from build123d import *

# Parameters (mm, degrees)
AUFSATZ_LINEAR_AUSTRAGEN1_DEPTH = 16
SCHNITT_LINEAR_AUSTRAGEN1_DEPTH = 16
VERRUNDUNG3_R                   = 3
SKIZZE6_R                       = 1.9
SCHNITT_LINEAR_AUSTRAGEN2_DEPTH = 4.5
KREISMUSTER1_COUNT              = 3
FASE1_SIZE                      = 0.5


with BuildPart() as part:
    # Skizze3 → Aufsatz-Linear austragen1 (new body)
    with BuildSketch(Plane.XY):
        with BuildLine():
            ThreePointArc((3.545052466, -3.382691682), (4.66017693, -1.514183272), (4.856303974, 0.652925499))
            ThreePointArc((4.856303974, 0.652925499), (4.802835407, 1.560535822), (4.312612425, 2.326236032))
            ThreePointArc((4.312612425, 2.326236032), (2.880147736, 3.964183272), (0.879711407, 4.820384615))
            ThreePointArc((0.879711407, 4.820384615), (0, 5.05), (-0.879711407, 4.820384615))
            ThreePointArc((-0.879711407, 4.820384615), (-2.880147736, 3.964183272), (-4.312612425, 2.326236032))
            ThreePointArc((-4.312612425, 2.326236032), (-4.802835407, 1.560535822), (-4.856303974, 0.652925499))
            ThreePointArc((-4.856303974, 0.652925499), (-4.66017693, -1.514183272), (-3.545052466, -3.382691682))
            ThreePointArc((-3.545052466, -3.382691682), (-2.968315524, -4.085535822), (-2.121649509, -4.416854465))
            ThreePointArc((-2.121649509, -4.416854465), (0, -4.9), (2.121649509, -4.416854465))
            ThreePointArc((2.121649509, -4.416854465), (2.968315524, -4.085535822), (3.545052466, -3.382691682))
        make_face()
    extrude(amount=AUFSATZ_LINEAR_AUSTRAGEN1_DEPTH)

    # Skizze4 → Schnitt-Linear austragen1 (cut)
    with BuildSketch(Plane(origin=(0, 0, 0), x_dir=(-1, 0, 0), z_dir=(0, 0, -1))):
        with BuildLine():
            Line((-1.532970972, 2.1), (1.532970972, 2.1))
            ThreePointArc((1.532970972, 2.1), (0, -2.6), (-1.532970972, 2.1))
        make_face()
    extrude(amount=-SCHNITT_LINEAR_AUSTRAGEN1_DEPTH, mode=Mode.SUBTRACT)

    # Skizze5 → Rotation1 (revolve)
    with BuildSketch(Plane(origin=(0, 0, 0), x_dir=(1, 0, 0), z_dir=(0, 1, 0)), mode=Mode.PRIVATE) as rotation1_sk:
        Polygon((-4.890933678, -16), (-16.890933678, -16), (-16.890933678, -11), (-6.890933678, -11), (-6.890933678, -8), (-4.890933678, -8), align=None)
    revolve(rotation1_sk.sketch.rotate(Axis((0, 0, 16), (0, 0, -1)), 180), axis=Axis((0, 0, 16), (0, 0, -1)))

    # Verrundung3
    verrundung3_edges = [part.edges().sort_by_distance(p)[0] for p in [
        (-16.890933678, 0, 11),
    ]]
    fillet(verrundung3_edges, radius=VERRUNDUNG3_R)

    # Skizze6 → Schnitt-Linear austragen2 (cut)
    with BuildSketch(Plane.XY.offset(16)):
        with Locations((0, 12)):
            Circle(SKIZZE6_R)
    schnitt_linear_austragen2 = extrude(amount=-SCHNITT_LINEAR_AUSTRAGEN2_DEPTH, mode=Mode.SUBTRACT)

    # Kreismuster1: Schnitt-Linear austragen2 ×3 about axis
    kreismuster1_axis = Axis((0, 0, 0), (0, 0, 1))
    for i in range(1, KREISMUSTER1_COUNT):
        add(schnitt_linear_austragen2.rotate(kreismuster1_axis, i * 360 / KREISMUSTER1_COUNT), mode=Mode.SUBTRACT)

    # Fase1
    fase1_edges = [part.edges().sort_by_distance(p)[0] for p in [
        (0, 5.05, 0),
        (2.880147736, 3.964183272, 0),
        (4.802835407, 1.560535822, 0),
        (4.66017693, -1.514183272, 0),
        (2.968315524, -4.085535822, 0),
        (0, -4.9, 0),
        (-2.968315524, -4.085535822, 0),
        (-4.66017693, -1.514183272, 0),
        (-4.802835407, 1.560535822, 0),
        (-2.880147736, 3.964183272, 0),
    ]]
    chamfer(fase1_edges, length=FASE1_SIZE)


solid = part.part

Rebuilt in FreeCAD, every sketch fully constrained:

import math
import FreeCAD as App
import Part
import Sketcher

V = App.Vector
Q = App.Units.Quantity


def edges_at(feature, points):
    """Names of the edges that pass closest to the given points."""
    edges = feature.Shape.Edges
    near = lambda p: min(range(len(edges)), key=lambda i: edges[i].distToShape(Part.Vertex(*p))[0])
    return sorted({f"Edge{near(p) + 1}" for p in points})


def add_polygon(sketch, points):
    """Adds a closed chain of lines whose ends are joined by coincident constraints."""
    first, n = sketch.GeometryCount, len(points)
    for a, b in zip(points, points[1:] + points[:1]):
        sketch.addGeometry(Part.LineSegment(App.Vector(*a, 0), App.Vector(*b, 0)), False)
    for i in range(n):
        sketch.addConstraint(Sketcher.Constraint("Coincident", first + i, 2, first + (i + 1) % n, 1))

doc = App.newDocument("Part")
body = doc.addObject("PartDesign::Body", "Body")

# Sketch on XY plane
sketch1 = doc.addObject("Sketcher::SketchObject", "Sketch")
body.addObject(sketch1)
sketch1.AttachmentSupport = (doc.XY_Plane, [""])
sketch1.MapMode = "FlatFace"
sketch1.addGeometry(Part.ArcOfCircle(Part.Circle(V(0, 0, 0), V(0, 0, 1), 4.9), math.radians(-44), math.radians(8)), False)
sketch1.addGeometry(Part.ArcOfCircle(Part.Circle(V(3.1, 1, 0), V(0, 0, 1), 1.8), math.radians(-11), math.radians(47)), False)
sketch1.addGeometry(Part.ArcOfCircle(Part.Circle(V(0, 0, 0), V(0, 0, 1), 4.9), math.radians(28), math.radians(80)), False)
sketch1.addGeometry(Part.ArcOfCircle(Part.Circle(V(0, 3.3, 0), V(0, 0, 1), 1.8), math.radians(61), math.radians(119)), False)
sketch1.addGeometry(Part.ArcOfCircle(Part.Circle(V(0, 0, 0), V(0, 0, 1), 4.9), math.radians(100), math.radians(152)), False)
sketch1.addGeometry(Part.ArcOfCircle(Part.Circle(V(-3.1, 1, 0), V(0, 0, 1), 1.8), math.radians(133), math.radians(191)), False)
sketch1.addGeometry(Part.ArcOfCircle(Part.Circle(V(0, 0, 0), V(0, 0, 1), 4.9), math.radians(172), math.radians(224)), False)
sketch1.addGeometry(Part.ArcOfCircle(Part.Circle(V(-1.9, -2.6, 0), V(0, 0, 1), 1.8), math.radians(-155), math.radians(-97)), False)
sketch1.addGeometry(Part.ArcOfCircle(Part.Circle(V(0, 0, 0), V(0, 0, 1), 4.9), math.radians(-116), math.radians(-64)), False)
sketch1.addGeometry(Part.ArcOfCircle(Part.Circle(V(1.9, -2.6, 0), V(0, 0, 1), 1.8), math.radians(-83), math.radians(-25)), False)
sketch1.addConstraint(Sketcher.Constraint("Coincident", 0, 2, 1, 1))
sketch1.addConstraint(Sketcher.Constraint("Coincident", 1, 2, 2, 1))
sketch1.addConstraint(Sketcher.Constraint("Coincident", 2, 2, 3, 1))
sketch1.addConstraint(Sketcher.Constraint("Coincident", 3, 2, 4, 1))
sketch1.addConstraint(Sketcher.Constraint("Coincident", 4, 2, 5, 1))
sketch1.addConstraint(Sketcher.Constraint("Coincident", 5, 2, 6, 1))
sketch1.addConstraint(Sketcher.Constraint("Coincident", 6, 2, 7, 1))
sketch1.addConstraint(Sketcher.Constraint("Coincident", 7, 2, 8, 1))
sketch1.addConstraint(Sketcher.Constraint("Coincident", 8, 2, 9, 1))
sketch1.addConstraint(Sketcher.Constraint("Coincident", 9, 2, 0, 1))
sketch1.addConstraint(Sketcher.Constraint("Coincident", 0, 3, -1, 1))
sketch1.addConstraint(Sketcher.Constraint("Coincident", 2, 3, -1, 1))
sketch1.addConstraint(Sketcher.Constraint("Coincident", 4, 3, -1, 1))
sketch1.addConstraint(Sketcher.Constraint("Coincident", 6, 3, -1, 1))
sketch1.addConstraint(Sketcher.Constraint("Coincident", 8, 3, -1, 1))
sketch1.addConstraint(Sketcher.Constraint("Equal", 0, 2))
sketch1.addConstraint(Sketcher.Constraint("Equal", 1, 3))
sketch1.addConstraint(Sketcher.Constraint("Equal", 2, 4))
sketch1.addConstraint(Sketcher.Constraint("Equal", 3, 5))
sketch1.addConstraint(Sketcher.Constraint("Equal", 4, 6))
sketch1.addConstraint(Sketcher.Constraint("Equal", 5, 7))
sketch1.addConstraint(Sketcher.Constraint("Equal", 6, 8))
sketch1.addConstraint(Sketcher.Constraint("Equal", 7, 9))
sketch1.addConstraint(Sketcher.Constraint("Symmetric", 1, 3, 5, 3, -2))
sketch1.addConstraint(Sketcher.Constraint("Symmetric", 7, 3, 9, 3, -2))
sketch1.addConstraint(Sketcher.Constraint("PointOnObject", 3, 3, -2))
sketch1.addConstraint(Sketcher.Constraint("Radius", 0, Q("4.9 mm")))
sketch1.addConstraint(Sketcher.Constraint("Radius", 1, Q("1.8 mm")))
sketch1.addConstraint(Sketcher.Constraint("DistanceY", -1, 1, 3, 3, Q("3.25 mm")))
sketch1.addConstraint(Sketcher.Constraint("DistanceX", 9, 3, 0, 2, Q("2.946002 mm")))
sketch1.addConstraint(Sketcher.Constraint("DistanceX", 2, 2, 1, 2, Q("3.432901 mm")))
sketch1.addConstraint(Sketcher.Constraint("DistanceX", 7, 2, 8, 2, Q("4.243299 mm")))
sketch1.addConstraint(Sketcher.Constraint("DistanceY", 6, 2, -1, 1, Q("3.382692 mm")))
pad1 = doc.addObject("PartDesign::Pad", "Pad")
body.addObject(pad1)
pad1.Profile = sketch1
pad1.Length = 16

# Sketch on XY plane
sketch2 = doc.addObject("Sketcher::SketchObject", "Sketch001")
body.addObject(sketch2)
sketch2.AttachmentSupport = (doc.XY_Plane, [""])
sketch2.MapMode = "FlatFace"
sketch2.addGeometry(Part.LineSegment(V(-1.5, 2.1, 0), V(1.5, 2.1, 0)), False)
sketch2.addGeometry(Part.ArcOfCircle(Part.Circle(V(0, 0, 0), V(0, 0, 1), 2.6), math.radians(126), math.radians(414)), False)
sketch2.addConstraint(Sketcher.Constraint("Coincident", 0, 1, 1, 1))
sketch2.addConstraint(Sketcher.Constraint("Coincident", 1, 2, 0, 2))
sketch2.addConstraint(Sketcher.Constraint("Horizontal", 0))
sketch2.addConstraint(Sketcher.Constraint("Coincident", 1, 3, -1, 1))
sketch2.addConstraint(Sketcher.Constraint("Radius", 1, Q("2.6 mm")))
sketch2.addConstraint(Sketcher.Constraint("DistanceY", -1, 1, 0, 1, Q("2.1 mm")))
pocket1 = doc.addObject("PartDesign::Pocket", "Pocket")
body.addObject(pocket1)
pocket1.Profile = sketch2
pocket1.Length = 16
pocket1.Reversed = True

# Sketch on XZ plane
sketch3 = doc.addObject("Sketcher::SketchObject", "Sketch002")
body.addObject(sketch3)
sketch3.AttachmentSupport = (doc.XZ_Plane, [""])
sketch3.MapMode = "FlatFace"
add_polygon(sketch3, [(-16.9, 16), (-4.9, 16), (-4.9, 8), (-6.9, 8), (-6.9, 11), (-16.9, 11)])  # lines 0-5
sketch3.addConstraint(Sketcher.Constraint("Horizontal", 0))
sketch3.addConstraint(Sketcher.Constraint("Vertical", 1))
sketch3.addConstraint(Sketcher.Constraint("Horizontal", 2))
sketch3.addConstraint(Sketcher.Constraint("Vertical", 3))
sketch3.addConstraint(Sketcher.Constraint("Horizontal", 4))
sketch3.addConstraint(Sketcher.Constraint("Vertical", 5))
sketch3.addConstraint(Sketcher.Constraint("DistanceX", 0, 1, 0, 2, Q("12 mm")))
sketch3.addConstraint(Sketcher.Constraint("DistanceX", 2, 2, 2, 1, Q("2 mm")))
sketch3.addConstraint(Sketcher.Constraint("DistanceY", 1, 2, 1, 1, Q("8 mm")))
sketch3.addConstraint(Sketcher.Constraint("DistanceY", 3, 1, 3, 2, Q("3 mm")))
sketch3.addConstraint(Sketcher.Constraint("DistanceY", -1, 1, 0, 2, Q("16 mm")))
sketch3.addConstraint(Sketcher.Constraint("DistanceX", 0, 2, -1, 1, Q("4.890934 mm")))
revolution = doc.addObject("PartDesign::Revolution", "Revolution")
body.addObject(revolution)
revolution.Profile = sketch3
revolution.ReferenceAxis = (sketch3, ["V_Axis"])
revolution.Angle = 360
doc.recompute()

fillet = doc.addObject("PartDesign::Fillet", "Fillet")
body.addObject(fillet)
fillet.Base = (revolution, edges_at(revolution, [(-16.891, 0, 11)]))
fillet.Radius = 3

# Sketch on XY plane
sketch4 = doc.addObject("Sketcher::SketchObject", "Sketch003")
body.addObject(sketch4)
sketch4.AttachmentSupport = (doc.XY_Plane, [""])
sketch4.MapMode = "FlatFace"
sketch4.AttachmentOffset = App.Placement(V(0, 0, 16), App.Rotation())
sketch4.addGeometry(Part.Circle(V(0, 12, 0), V(0, 0, 1), 1.9), False)
sketch4.addConstraint(Sketcher.Constraint("PointOnObject", 0, 3, -2))
sketch4.addConstraint(Sketcher.Constraint("Diameter", 0, Q("3.8 mm")))
sketch4.addConstraint(Sketcher.Constraint("DistanceY", -1, 1, 0, 3, Q("12 mm")))
pocket2 = doc.addObject("PartDesign::Pocket", "Pocket001")
body.addObject(pocket2)
pocket2.Profile = sketch4
pocket2.Length = 4.5
doc.recompute()

polarpattern = doc.addObject("PartDesign::PolarPattern", "PolarPattern")
body.addObject(polarpattern)
polarpattern.Originals = [pocket2]
polarpattern.Axis = (doc.Z_Axis, [""])
polarpattern.Angle = 360
polarpattern.Occurrences = 3
body.Tip = polarpattern
doc.recompute()

chamfer = doc.addObject("PartDesign::Chamfer", "Chamfer")
body.addObject(chamfer)
chamfer.Base = (polarpattern, edges_at(polarpattern, [
    (0, 5.05, 0),
    (2.88, 3.964, 0),
    (4.803, 1.561, 0),
    (4.66, -1.514, 0),
    (2.968, -4.086, 0),
    (0, -4.9, 0),
    (-2.968, -4.086, 0),
    (-4.66, -1.514, 0),
    (-4.803, 1.561, 0),
    (-2.88, 3.964, 0),
]))
chamfer.Size = 0.5

doc.recompute()
